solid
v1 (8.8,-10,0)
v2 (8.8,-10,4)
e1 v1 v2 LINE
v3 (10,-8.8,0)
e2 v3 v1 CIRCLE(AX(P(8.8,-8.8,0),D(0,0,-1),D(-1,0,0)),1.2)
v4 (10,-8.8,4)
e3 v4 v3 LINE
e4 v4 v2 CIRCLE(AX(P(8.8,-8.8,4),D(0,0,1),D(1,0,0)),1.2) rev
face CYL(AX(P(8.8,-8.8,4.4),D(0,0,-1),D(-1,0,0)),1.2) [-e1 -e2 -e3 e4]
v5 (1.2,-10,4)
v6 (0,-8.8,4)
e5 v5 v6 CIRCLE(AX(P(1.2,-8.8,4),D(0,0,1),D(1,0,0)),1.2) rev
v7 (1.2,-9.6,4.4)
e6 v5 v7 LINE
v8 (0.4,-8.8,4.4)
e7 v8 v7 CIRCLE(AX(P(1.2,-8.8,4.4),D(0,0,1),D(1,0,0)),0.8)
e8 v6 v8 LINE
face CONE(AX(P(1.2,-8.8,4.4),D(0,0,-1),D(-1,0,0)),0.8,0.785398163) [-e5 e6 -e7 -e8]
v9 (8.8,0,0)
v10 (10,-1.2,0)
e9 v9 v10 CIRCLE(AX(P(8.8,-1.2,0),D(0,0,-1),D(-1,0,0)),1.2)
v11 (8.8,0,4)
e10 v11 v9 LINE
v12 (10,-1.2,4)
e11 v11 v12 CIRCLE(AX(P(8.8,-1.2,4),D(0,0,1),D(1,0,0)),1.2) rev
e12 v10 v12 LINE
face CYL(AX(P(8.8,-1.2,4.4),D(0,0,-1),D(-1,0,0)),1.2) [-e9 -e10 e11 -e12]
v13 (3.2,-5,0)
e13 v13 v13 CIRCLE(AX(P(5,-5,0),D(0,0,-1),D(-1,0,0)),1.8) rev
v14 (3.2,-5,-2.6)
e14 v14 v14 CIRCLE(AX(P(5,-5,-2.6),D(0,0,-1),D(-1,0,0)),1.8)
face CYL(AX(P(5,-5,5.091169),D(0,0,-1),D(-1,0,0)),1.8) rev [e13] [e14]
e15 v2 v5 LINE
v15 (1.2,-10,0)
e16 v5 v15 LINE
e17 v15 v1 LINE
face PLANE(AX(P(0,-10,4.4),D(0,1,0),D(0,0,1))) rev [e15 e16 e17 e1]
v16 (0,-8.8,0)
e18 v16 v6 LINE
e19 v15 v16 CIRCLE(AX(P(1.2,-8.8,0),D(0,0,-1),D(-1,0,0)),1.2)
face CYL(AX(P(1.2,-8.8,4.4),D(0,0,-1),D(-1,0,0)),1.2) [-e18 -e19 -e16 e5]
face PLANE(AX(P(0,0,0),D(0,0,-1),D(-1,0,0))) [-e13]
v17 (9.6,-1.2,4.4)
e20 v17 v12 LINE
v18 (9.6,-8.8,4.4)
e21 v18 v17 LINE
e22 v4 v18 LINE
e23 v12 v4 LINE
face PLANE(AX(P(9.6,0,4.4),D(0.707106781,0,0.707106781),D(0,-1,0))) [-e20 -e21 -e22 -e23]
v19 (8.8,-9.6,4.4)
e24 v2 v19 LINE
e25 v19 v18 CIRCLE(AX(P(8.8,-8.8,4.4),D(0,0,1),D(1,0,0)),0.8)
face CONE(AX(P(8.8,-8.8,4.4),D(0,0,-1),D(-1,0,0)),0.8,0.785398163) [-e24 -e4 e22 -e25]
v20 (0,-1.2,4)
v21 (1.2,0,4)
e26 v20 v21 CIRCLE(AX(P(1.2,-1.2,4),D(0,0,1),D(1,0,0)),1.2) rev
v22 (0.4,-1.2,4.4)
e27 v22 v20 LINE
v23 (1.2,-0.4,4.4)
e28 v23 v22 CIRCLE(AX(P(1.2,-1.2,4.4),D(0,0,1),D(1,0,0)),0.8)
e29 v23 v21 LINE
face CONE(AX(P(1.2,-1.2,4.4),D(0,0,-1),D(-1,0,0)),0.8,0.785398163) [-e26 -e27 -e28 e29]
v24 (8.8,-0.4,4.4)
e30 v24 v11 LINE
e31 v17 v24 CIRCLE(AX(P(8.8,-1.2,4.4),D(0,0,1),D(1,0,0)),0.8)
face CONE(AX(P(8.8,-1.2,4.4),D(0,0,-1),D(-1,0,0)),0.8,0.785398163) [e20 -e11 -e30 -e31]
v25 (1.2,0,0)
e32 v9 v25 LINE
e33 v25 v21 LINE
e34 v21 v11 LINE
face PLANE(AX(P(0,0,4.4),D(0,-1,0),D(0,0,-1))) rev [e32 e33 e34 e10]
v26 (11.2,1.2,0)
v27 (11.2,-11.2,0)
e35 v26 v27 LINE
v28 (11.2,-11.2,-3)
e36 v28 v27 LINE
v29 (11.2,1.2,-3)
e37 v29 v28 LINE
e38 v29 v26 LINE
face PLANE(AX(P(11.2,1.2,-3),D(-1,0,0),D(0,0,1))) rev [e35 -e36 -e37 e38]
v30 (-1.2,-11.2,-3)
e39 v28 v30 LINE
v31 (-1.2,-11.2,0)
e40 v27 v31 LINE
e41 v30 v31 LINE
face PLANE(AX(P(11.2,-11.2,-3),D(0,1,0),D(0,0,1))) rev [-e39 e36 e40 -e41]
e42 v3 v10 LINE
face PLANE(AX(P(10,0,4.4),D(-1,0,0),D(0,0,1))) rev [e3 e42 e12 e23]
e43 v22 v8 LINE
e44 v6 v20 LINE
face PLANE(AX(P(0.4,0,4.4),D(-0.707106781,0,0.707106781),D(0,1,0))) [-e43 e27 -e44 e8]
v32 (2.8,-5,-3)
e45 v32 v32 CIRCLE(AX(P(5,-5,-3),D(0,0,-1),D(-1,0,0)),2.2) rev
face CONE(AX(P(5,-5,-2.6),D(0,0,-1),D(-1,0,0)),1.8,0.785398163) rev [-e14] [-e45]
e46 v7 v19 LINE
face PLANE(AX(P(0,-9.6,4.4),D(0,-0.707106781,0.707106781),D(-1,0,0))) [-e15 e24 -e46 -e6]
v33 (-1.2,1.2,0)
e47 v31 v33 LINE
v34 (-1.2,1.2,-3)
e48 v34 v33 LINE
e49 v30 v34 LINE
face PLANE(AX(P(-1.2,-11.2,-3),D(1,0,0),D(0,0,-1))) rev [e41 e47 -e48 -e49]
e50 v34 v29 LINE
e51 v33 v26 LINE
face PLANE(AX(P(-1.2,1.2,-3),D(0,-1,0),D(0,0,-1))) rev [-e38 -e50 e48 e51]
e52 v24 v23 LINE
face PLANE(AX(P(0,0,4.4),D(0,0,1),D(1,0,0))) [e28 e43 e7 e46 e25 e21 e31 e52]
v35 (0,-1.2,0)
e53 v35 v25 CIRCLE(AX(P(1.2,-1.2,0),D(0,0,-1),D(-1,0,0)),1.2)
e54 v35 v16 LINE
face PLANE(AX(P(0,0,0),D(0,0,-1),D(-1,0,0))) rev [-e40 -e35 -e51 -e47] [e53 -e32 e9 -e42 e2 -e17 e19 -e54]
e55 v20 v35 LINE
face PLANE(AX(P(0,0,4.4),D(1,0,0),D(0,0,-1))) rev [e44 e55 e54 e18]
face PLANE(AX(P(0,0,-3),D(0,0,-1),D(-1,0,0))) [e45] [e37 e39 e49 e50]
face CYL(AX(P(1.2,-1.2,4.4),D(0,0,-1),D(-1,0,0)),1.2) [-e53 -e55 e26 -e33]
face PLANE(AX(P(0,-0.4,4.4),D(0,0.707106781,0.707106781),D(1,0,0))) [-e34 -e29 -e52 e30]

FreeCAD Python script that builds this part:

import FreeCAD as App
import Part
import Sketcher

V = App.Vector
Q = App.Units.Quantity


def edges_at(feature, points):
    """Names of the edges that pass closest to the given points."""
    edges = feature.Shape.Edges
    near = lambda p: min(range(len(edges)), key=lambda i: edges[i].distToShape(Part.Vertex(*p))[0])
    return sorted({f"Edge{near(p) + 1}" for p in points})

doc = App.newDocument("Part")
body = doc.addObject("PartDesign::Body", "Body")

# Sketch on XY plane
sketch1 = body.newObject("Sketcher::SketchObject", "Sketch")
sketch1.AttachmentSupport = (doc.getObject("XY_Plane"), [""])
sketch1.MapMode = "FlatFace"
sketch1.addGeometry([
    Part.LineSegment(V(0, 0, 0), V(0, -10, 0)),
    Part.LineSegment(V(0, -10, 0), V(10, -10, 0)),
    Part.LineSegment(V(10, -10, 0), V(10, 0, 0)),
    Part.LineSegment(V(10, 0, 0), V(0, 0, 0)),
], False)
sketch1.addConstraint([
    Sketcher.Constraint("Coincident", 0, 2, 1, 1),
    Sketcher.Constraint("Coincident", 1, 2, 2, 1),
    Sketcher.Constraint("Coincident", 2, 2, 3, 1),
    Sketcher.Constraint("Coincident", 3, 2, 0, 1),
    Sketcher.Constraint("Vertical", 0),
    Sketcher.Constraint("Horizontal", 1),
    Sketcher.Constraint("Vertical", 2),
    Sketcher.Constraint("Horizontal", 3),
    Sketcher.Constraint("Coincident", 3, 2, -1, 1),
    Sketcher.Constraint("Equal", 3, 0),
    Sketcher.Constraint("DistanceX", 1, 1, 1, 2, Q("10 mm")),
])
pad1 = body.newObject("PartDesign::Pad", "Pad")
pad1.Profile = sketch1
pad1.Length = 4.4

# Sketch on XY plane
sketch2 = body.newObject("Sketcher::SketchObject", "Sketch001")
sketch2.AttachmentSupport = (doc.getObject("XY_Plane"), [""])
sketch2.MapMode = "FlatFace"
sketch2.addGeometry([
    Part.LineSegment(V(11.2, 1.2, 0), V(11.2, -11.2, 0)),
    Part.LineSegment(V(11.2, -11.2, 0), V(-1.2, -11.2, 0)),
    Part.LineSegment(V(-1.2, -11.2, 0), V(-1.2, 1.2, 0)),
    Part.LineSegment(V(-1.2, 1.2, 0), V(11.2, 1.2, 0)),
], False)
sketch2.addConstraint([
    Sketcher.Constraint("Coincident", 0, 2, 1, 1),
    Sketcher.Constraint("Coincident", 1, 2, 2, 1),
    Sketcher.Constraint("Coincident", 2, 2, 3, 1),
    Sketcher.Constraint("Coincident", 3, 2, 0, 1),
    Sketcher.Constraint("Vertical", 0),
    Sketcher.Constraint("Horizontal", 1),
    Sketcher.Constraint("Vertical", 2),
    Sketcher.Constraint("Horizontal", 3),
    Sketcher.Constraint("Equal", 3, 0),
    Sketcher.Constraint("DistanceX", 1, 2, 1, 1, Q("12.4 mm")),
    Sketcher.Constraint("DistanceX", -1, 1, 0, 2, Q("11.2 mm")),
    Sketcher.Constraint("DistanceY", 0, 2, -1, 1, Q("11.2 mm")),
])
pad2 = body.newObject("PartDesign::Pad", "Pad001")
pad2.Profile = sketch2
pad2.Length = 3
pad2.Reversed = True

# Sketch on XY plane
sketch3 = body.newObject("Sketcher::SketchObject", "Sketch002")
sketch3.AttachmentSupport = (doc.getObject("XY_Plane"), [""])
sketch3.MapMode = "FlatFace"
sketch3.AttachmentOffset = App.Placement(V(0, 0, -3), App.Rotation())
sketch3.addGeometry(Part.Circle(V(5, -5, 0), V(0, 0, 1), 1.8), False)
sketch3.addConstraint([
    Sketcher.Constraint("Diameter", 0, Q("3.6 mm")),
    Sketcher.Constraint("DistanceX", -1, 1, 0, 3, Q("5 mm")),
    Sketcher.Constraint("DistanceY", 0, 3, -1, 1, Q("5 mm")),
])
pocket1 = body.newObject("PartDesign::Pocket", "Pocket")
pocket1.Profile = sketch3
pocket1.Length = 3
pocket1.Reversed = True
doc.recompute()

fillet = body.newObject("PartDesign::Fillet", "Fillet")
fillet.Base = (pocket1, edges_at(pocket1, [
    (0, 0, 2.2),
    (10, 0, 2.2),
    (10, -10, 2.2),
    (0, -10, 2.2),
]))
fillet.Radius = 1.2
doc.recompute()

chamfer = body.newObject("PartDesign::Chamfer", "Chamfer")
chamfer.Base = (fillet, edges_at(fillet, [
    (5, 0, 4.4),
    (10, -5, 4.4),
    (0, -5, 4.4),
    (5, -10, 4.4),
    (9.649, -9.649, 4.4),
    (0.351, -9.649, 4.4),
    (0.351, -0.351, 4.4),
    (9.649, -0.351, 4.4),
]))
chamfer.Size = 0.4
doc.recompute()

chamfer2 = body.newObject("PartDesign::Chamfer", "Chamfer001")
chamfer2.Base = (chamfer, edges_at(chamfer, [(6.8, -5, -3)]))
chamfer2.Size = 0.4

doc.recompute()
